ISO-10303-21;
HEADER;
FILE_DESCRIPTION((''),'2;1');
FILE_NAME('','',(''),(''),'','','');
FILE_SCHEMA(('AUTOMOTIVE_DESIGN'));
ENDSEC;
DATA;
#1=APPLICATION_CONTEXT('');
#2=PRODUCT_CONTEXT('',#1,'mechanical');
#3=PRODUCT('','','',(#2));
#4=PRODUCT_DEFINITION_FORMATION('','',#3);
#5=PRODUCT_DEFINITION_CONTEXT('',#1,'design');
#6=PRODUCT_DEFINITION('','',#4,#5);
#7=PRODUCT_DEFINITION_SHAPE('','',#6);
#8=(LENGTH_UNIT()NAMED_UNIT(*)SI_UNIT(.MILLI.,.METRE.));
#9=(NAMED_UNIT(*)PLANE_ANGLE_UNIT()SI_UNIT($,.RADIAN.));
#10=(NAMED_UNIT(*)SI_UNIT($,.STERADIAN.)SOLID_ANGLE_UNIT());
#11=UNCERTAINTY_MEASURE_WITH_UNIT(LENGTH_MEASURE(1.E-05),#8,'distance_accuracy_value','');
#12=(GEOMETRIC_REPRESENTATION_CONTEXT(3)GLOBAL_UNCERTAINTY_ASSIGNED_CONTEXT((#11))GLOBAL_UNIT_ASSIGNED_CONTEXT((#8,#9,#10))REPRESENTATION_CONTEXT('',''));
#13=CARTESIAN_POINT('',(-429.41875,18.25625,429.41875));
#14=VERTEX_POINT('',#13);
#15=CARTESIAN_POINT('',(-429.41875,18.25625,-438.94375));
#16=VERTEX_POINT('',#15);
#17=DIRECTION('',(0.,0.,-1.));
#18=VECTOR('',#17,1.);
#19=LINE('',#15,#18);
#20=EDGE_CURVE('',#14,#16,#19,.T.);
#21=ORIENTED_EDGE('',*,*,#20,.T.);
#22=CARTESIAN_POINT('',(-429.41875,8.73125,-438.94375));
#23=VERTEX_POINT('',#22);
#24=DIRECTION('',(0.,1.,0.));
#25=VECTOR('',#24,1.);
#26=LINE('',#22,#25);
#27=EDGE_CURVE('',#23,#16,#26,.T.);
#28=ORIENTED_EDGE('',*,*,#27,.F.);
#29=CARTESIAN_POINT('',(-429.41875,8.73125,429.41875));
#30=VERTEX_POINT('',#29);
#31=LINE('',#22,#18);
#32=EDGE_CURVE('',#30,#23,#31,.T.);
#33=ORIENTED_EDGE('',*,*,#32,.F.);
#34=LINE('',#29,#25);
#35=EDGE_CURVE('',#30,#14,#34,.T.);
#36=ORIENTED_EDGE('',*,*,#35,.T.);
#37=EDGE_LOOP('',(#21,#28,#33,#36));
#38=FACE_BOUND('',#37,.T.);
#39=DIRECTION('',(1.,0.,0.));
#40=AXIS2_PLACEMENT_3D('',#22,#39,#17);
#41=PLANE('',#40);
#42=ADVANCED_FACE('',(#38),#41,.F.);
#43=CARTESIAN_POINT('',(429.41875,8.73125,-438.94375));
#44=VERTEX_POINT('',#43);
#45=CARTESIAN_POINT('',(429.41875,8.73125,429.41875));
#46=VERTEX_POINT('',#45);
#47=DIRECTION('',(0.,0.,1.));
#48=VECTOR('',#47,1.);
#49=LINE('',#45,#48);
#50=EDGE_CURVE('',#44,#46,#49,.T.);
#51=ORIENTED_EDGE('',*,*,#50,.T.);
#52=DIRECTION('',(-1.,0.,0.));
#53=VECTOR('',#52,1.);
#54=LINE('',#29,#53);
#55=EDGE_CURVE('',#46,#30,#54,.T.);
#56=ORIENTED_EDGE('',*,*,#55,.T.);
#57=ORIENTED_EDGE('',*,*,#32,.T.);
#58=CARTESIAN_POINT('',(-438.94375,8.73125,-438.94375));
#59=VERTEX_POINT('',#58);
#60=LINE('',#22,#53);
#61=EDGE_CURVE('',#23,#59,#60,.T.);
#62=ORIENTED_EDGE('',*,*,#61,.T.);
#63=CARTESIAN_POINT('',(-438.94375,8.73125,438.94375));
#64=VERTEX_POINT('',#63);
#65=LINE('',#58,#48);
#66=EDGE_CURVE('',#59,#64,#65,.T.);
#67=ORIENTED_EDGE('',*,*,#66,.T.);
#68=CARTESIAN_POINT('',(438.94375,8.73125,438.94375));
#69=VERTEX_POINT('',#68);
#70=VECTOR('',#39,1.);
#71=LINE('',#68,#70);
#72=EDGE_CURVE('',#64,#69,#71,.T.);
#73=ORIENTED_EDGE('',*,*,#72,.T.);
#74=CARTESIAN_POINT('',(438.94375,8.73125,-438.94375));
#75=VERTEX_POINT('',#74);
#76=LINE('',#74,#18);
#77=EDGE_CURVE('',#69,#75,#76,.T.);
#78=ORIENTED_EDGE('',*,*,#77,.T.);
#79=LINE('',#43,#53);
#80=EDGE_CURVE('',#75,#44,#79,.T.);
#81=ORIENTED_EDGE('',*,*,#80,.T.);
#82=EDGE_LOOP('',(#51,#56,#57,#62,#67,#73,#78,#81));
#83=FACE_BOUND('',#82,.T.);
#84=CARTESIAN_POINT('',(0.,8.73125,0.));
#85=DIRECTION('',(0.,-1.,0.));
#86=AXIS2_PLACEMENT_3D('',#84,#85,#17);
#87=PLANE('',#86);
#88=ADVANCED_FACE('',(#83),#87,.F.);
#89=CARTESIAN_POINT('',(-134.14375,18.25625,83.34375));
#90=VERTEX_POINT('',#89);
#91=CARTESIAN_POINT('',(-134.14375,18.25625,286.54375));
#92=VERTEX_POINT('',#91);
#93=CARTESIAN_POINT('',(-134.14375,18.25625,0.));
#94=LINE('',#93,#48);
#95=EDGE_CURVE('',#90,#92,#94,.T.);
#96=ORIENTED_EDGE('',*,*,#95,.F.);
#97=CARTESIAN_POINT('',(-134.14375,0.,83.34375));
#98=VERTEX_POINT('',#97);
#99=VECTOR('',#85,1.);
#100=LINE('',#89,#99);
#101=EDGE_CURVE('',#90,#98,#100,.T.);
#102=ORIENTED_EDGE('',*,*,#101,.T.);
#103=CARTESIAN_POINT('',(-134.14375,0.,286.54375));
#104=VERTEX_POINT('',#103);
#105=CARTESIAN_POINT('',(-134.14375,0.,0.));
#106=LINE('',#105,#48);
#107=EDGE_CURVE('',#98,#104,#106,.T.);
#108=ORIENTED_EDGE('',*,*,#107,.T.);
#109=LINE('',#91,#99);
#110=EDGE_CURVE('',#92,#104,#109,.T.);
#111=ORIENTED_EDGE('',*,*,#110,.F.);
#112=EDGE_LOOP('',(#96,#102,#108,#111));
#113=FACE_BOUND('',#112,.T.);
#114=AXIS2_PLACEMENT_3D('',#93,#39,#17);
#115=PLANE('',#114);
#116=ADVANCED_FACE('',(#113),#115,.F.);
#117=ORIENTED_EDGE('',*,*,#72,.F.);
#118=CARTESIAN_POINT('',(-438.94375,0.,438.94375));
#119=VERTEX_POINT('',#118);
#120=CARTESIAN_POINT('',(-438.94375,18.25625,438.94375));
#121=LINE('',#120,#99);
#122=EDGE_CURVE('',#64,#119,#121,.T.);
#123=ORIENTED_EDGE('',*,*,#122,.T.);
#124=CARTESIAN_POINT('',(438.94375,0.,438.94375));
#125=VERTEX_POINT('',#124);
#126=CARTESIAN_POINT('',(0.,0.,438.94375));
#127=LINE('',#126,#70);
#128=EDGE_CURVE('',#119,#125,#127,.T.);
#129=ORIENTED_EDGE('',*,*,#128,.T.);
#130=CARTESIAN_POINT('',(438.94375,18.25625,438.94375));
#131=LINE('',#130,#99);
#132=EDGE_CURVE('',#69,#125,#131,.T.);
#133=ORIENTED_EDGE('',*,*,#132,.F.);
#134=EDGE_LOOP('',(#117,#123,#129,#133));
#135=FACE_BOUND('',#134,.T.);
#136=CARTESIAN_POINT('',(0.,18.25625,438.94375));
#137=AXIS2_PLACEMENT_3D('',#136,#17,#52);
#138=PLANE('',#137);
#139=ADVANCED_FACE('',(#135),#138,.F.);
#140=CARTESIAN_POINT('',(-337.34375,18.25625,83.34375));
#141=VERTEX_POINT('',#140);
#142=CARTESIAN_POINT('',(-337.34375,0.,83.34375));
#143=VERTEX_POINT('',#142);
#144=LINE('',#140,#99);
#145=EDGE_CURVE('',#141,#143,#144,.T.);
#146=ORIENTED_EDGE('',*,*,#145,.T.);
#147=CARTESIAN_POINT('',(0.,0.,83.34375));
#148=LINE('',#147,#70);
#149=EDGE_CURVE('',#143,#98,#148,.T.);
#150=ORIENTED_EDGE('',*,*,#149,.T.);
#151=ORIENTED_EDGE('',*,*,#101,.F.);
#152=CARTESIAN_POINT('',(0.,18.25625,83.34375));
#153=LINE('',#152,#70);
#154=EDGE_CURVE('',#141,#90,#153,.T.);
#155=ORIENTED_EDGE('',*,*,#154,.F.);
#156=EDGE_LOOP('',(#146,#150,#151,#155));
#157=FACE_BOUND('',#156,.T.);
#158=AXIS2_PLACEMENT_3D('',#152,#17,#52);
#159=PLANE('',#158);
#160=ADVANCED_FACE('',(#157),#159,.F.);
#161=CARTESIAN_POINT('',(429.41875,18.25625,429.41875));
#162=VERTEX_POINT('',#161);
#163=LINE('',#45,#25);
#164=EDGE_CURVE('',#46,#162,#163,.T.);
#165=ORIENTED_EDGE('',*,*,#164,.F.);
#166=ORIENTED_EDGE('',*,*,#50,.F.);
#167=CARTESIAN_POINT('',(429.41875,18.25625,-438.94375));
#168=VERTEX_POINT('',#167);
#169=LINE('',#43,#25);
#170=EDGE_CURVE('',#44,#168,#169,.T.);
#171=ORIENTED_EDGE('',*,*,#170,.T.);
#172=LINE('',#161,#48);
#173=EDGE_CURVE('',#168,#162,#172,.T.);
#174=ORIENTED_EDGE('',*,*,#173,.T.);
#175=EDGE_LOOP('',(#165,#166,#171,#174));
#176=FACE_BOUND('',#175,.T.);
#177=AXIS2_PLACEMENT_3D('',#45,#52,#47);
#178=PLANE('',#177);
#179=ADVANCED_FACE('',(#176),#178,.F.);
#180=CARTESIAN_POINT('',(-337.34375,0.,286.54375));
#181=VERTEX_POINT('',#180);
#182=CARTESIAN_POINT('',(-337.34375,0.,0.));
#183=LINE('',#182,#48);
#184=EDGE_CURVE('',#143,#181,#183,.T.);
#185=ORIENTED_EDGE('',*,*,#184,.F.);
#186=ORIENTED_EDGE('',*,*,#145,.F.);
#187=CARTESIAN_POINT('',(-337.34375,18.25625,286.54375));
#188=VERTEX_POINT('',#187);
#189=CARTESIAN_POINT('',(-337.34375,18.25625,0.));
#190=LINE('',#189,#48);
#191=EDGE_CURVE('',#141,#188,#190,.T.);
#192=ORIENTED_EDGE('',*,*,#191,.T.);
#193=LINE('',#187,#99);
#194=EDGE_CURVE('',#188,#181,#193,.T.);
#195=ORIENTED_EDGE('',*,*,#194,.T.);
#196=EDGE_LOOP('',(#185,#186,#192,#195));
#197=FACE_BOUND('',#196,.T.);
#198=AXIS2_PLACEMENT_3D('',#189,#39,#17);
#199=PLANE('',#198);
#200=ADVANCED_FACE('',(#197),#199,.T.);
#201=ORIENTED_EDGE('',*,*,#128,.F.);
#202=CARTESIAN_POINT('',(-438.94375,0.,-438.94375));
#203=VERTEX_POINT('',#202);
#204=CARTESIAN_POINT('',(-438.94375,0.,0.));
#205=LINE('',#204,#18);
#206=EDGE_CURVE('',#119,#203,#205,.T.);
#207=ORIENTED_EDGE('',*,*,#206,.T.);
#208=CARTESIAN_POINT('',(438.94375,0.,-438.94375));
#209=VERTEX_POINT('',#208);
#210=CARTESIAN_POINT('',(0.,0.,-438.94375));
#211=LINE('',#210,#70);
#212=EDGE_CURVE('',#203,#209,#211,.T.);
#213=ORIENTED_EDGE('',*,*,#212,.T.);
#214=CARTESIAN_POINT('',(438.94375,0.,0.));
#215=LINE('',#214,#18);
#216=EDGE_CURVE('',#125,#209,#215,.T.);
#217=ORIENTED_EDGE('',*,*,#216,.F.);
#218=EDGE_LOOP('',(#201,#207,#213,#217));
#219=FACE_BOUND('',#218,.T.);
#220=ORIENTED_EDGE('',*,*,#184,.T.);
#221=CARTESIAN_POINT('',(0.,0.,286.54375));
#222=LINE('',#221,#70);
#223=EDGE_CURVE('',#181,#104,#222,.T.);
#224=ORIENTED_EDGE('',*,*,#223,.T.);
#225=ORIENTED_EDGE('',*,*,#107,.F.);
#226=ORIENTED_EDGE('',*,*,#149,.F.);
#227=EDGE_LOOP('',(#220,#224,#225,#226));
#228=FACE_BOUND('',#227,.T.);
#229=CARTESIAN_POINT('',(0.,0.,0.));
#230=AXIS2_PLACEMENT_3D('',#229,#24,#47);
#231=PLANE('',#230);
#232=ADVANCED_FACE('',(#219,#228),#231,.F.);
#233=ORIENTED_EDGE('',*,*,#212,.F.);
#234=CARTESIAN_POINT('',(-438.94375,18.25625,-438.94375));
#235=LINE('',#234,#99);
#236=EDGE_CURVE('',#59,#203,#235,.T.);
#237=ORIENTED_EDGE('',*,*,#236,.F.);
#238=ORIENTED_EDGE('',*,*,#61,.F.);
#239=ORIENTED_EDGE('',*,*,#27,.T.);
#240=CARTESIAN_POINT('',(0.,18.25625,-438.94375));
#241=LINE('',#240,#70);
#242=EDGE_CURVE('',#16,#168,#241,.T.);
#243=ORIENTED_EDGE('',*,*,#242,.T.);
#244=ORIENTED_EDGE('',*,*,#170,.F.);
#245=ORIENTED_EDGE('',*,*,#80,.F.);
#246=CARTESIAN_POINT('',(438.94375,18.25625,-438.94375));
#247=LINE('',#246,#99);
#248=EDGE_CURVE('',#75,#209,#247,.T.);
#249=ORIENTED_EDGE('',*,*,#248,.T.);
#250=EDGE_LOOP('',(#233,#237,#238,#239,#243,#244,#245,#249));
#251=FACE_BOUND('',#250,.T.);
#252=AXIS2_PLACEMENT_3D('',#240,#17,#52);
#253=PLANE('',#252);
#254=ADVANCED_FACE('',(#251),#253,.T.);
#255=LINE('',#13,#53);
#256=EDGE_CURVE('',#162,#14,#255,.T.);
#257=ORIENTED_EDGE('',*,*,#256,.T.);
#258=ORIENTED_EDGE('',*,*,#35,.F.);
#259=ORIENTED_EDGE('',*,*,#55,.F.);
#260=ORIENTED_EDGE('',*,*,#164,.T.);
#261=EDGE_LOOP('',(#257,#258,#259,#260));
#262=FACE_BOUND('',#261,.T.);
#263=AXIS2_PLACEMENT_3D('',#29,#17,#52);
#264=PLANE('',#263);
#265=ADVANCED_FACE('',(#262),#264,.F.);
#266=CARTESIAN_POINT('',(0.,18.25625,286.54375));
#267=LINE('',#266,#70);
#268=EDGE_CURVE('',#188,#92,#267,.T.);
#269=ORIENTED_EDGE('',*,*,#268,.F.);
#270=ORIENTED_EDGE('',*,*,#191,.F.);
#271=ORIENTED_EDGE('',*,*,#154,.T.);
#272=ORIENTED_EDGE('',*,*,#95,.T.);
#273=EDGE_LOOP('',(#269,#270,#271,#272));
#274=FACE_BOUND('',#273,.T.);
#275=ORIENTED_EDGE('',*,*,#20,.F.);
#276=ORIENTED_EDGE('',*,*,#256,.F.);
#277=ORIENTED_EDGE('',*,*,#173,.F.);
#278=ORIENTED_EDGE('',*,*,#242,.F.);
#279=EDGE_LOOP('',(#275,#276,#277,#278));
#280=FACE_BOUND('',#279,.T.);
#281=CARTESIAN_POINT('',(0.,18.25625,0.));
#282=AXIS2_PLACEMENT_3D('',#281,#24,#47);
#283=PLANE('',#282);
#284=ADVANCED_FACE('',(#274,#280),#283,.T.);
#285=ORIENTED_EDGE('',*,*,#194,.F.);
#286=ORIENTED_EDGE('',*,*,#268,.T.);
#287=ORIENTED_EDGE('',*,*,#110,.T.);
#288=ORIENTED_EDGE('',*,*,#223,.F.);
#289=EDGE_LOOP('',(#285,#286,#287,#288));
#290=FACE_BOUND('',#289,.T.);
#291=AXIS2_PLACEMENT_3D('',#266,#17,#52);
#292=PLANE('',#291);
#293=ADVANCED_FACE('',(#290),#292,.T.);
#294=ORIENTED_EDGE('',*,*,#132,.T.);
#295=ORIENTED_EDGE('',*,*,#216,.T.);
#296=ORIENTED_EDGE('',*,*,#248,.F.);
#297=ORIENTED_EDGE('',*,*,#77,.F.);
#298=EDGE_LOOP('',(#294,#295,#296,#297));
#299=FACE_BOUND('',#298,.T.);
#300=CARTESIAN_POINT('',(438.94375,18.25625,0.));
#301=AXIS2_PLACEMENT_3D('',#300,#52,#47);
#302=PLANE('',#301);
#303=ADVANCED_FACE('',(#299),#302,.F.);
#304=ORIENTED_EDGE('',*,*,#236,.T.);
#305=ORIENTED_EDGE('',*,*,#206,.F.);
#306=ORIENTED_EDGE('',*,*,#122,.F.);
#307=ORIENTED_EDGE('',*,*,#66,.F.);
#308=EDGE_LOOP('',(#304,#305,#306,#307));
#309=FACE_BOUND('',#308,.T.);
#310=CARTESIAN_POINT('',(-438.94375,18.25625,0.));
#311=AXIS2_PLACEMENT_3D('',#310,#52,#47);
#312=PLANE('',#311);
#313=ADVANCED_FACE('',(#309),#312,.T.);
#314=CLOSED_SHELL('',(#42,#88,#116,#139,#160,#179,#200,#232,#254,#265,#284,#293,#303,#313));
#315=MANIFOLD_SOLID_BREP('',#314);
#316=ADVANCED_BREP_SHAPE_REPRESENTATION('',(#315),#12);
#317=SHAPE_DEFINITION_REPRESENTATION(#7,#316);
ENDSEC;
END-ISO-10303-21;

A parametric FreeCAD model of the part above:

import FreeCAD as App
import Part
import Sketcher

V = App.Vector
Q = App.Units.Quantity


def add_polygon(sketch, points):
    """Adds a closed chain of lines whose ends are joined by coincident constraints."""
    first, n = sketch.GeometryCount, len(points)
    for a, b in zip(points, points[1:] + points[:1]):
        sketch.addGeometry(Part.LineSegment(App.Vector(*a, 0), App.Vector(*b, 0)), False)
    for i in range(n):
        sketch.addConstraint(Sketcher.Constraint("Coincident", first + i, 2, first + (i + 1) % n, 1))

doc = App.newDocument("Part")
body = doc.addObject("PartDesign::Body", "Body")

# Sketch on XZ plane
sketch1 = body.newObject("Sketcher::SketchObject", "Sketch")
sketch1.AttachmentSupport = (doc.getObject("XZ_Plane"), [""])
sketch1.MapMode = "FlatFace"
add_polygon(sketch1, [(-438.94375, -438.94375), (-438.94375, 438.94375), (438.94375, 438.94375), (438.94375, -438.94375)])  # lines 0-3
add_polygon(sketch1, [(-134.14375, 286.54375), (-337.34375, 286.54375), (-337.34375, 83.34375), (-134.14375, 83.34375)])  # lines 4-7
sketch1.addConstraint(Sketcher.Constraint("Vertical", 0))
sketch1.addConstraint(Sketcher.Constraint("Horizontal", 1))
sketch1.addConstraint(Sketcher.Constraint("Vertical", 2))
sketch1.addConstraint(Sketcher.Constraint("Horizontal", 3))
sketch1.addConstraint(Sketcher.Constraint("Horizontal", 4))
sketch1.addConstraint(Sketcher.Constraint("Vertical", 5))
sketch1.addConstraint(Sketcher.Constraint("Horizontal", 6))
sketch1.addConstraint(Sketcher.Constraint("Vertical", 7))
sketch1.addConstraint(Sketcher.Constraint("Symmetric", 0, 2, 2, 2, -1, 1))
sketch1.addConstraint(Sketcher.Constraint("Equal", 3, 0))
sketch1.addConstraint(Sketcher.Constraint("Equal", 6, 5))
sketch1.addConstraint(Sketcher.Constraint("DistanceX", 4, 2, 4, 1, Q("8 in")))
sketch1.addConstraint(Sketcher.Constraint("DistanceX", 0, 2, 4, 2, Q("4 in")))
sketch1.addConstraint(Sketcher.Constraint("DistanceY", 4, 2, 0, 2, Q("6 in")))
sketch1.addConstraint(Sketcher.Constraint("DistanceX", 1, 1, 1, 2, Q("34.5625 in")))
pad1 = body.newObject("PartDesign::Pad", "Pad")
pad1.Profile = sketch1
pad1.Length = Q("0.71875 in")
pad1.Reversed = True

# Sketch on XZ plane
sketch2 = body.newObject("Sketcher::SketchObject", "Sketch001")
sketch2.AttachmentSupport = (doc.getObject("XZ_Plane"), [""])
sketch2.MapMode = "FlatFace"
sketch2.AttachmentOffset = App.Placement(V(0, 0, -0.71875 * 25.4), App.Rotation())
add_polygon(sketch2, [(438.94375, -438.94375), (429.41875, -438.94375), (429.41875, 429.41875), (-429.41875, 429.41875), (-429.41875, -438.94375), (-438.94375, -438.94375), (-438.94375, 438.94375), (438.94375, 438.94375)])  # lines 0-7
sketch2.addConstraint(Sketcher.Constraint("Horizontal", 0))
sketch2.addConstraint(Sketcher.Constraint("Vertical", 1))
sketch2.addConstraint(Sketcher.Constraint("Horizontal", 2))
sketch2.addConstraint(Sketcher.Constraint("Vertical", 3))
sketch2.addConstraint(Sketcher.Constraint("Horizontal", 4))
sketch2.addConstraint(Sketcher.Constraint("Vertical", 5))
sketch2.addConstraint(Sketcher.Constraint("Horizontal", 6))
sketch2.addConstraint(Sketcher.Constraint("Vertical", 7))
sketch2.addConstraint(Sketcher.Constraint("Symmetric", 4, 2, 6, 2, -1, 1))
sketch2.addConstraint(Sketcher.Constraint("Symmetric", 0, 2, 3, 2, -2))
sketch2.addConstraint(Sketcher.Constraint("Equal", 6, 5))
sketch2.addConstraint(Sketcher.Constraint("DistanceX", 0, 2, 0, 1, Q("0.375 in")))
sketch2.addConstraint(Sketcher.Constraint("DistanceX", 2, 2, 2, 1, Q("33.8125 in")))
sketch2.addConstraint(Sketcher.Constraint("DistanceY", 1, 1, 1, 2, Q("34.1875 in")))
pocket1 = body.newObject("PartDesign::Pocket", "Pocket")
pocket1.Profile = sketch2
pocket1.Length = Q("0.375 in")
pocket1.Reversed = True

doc.recompute()
